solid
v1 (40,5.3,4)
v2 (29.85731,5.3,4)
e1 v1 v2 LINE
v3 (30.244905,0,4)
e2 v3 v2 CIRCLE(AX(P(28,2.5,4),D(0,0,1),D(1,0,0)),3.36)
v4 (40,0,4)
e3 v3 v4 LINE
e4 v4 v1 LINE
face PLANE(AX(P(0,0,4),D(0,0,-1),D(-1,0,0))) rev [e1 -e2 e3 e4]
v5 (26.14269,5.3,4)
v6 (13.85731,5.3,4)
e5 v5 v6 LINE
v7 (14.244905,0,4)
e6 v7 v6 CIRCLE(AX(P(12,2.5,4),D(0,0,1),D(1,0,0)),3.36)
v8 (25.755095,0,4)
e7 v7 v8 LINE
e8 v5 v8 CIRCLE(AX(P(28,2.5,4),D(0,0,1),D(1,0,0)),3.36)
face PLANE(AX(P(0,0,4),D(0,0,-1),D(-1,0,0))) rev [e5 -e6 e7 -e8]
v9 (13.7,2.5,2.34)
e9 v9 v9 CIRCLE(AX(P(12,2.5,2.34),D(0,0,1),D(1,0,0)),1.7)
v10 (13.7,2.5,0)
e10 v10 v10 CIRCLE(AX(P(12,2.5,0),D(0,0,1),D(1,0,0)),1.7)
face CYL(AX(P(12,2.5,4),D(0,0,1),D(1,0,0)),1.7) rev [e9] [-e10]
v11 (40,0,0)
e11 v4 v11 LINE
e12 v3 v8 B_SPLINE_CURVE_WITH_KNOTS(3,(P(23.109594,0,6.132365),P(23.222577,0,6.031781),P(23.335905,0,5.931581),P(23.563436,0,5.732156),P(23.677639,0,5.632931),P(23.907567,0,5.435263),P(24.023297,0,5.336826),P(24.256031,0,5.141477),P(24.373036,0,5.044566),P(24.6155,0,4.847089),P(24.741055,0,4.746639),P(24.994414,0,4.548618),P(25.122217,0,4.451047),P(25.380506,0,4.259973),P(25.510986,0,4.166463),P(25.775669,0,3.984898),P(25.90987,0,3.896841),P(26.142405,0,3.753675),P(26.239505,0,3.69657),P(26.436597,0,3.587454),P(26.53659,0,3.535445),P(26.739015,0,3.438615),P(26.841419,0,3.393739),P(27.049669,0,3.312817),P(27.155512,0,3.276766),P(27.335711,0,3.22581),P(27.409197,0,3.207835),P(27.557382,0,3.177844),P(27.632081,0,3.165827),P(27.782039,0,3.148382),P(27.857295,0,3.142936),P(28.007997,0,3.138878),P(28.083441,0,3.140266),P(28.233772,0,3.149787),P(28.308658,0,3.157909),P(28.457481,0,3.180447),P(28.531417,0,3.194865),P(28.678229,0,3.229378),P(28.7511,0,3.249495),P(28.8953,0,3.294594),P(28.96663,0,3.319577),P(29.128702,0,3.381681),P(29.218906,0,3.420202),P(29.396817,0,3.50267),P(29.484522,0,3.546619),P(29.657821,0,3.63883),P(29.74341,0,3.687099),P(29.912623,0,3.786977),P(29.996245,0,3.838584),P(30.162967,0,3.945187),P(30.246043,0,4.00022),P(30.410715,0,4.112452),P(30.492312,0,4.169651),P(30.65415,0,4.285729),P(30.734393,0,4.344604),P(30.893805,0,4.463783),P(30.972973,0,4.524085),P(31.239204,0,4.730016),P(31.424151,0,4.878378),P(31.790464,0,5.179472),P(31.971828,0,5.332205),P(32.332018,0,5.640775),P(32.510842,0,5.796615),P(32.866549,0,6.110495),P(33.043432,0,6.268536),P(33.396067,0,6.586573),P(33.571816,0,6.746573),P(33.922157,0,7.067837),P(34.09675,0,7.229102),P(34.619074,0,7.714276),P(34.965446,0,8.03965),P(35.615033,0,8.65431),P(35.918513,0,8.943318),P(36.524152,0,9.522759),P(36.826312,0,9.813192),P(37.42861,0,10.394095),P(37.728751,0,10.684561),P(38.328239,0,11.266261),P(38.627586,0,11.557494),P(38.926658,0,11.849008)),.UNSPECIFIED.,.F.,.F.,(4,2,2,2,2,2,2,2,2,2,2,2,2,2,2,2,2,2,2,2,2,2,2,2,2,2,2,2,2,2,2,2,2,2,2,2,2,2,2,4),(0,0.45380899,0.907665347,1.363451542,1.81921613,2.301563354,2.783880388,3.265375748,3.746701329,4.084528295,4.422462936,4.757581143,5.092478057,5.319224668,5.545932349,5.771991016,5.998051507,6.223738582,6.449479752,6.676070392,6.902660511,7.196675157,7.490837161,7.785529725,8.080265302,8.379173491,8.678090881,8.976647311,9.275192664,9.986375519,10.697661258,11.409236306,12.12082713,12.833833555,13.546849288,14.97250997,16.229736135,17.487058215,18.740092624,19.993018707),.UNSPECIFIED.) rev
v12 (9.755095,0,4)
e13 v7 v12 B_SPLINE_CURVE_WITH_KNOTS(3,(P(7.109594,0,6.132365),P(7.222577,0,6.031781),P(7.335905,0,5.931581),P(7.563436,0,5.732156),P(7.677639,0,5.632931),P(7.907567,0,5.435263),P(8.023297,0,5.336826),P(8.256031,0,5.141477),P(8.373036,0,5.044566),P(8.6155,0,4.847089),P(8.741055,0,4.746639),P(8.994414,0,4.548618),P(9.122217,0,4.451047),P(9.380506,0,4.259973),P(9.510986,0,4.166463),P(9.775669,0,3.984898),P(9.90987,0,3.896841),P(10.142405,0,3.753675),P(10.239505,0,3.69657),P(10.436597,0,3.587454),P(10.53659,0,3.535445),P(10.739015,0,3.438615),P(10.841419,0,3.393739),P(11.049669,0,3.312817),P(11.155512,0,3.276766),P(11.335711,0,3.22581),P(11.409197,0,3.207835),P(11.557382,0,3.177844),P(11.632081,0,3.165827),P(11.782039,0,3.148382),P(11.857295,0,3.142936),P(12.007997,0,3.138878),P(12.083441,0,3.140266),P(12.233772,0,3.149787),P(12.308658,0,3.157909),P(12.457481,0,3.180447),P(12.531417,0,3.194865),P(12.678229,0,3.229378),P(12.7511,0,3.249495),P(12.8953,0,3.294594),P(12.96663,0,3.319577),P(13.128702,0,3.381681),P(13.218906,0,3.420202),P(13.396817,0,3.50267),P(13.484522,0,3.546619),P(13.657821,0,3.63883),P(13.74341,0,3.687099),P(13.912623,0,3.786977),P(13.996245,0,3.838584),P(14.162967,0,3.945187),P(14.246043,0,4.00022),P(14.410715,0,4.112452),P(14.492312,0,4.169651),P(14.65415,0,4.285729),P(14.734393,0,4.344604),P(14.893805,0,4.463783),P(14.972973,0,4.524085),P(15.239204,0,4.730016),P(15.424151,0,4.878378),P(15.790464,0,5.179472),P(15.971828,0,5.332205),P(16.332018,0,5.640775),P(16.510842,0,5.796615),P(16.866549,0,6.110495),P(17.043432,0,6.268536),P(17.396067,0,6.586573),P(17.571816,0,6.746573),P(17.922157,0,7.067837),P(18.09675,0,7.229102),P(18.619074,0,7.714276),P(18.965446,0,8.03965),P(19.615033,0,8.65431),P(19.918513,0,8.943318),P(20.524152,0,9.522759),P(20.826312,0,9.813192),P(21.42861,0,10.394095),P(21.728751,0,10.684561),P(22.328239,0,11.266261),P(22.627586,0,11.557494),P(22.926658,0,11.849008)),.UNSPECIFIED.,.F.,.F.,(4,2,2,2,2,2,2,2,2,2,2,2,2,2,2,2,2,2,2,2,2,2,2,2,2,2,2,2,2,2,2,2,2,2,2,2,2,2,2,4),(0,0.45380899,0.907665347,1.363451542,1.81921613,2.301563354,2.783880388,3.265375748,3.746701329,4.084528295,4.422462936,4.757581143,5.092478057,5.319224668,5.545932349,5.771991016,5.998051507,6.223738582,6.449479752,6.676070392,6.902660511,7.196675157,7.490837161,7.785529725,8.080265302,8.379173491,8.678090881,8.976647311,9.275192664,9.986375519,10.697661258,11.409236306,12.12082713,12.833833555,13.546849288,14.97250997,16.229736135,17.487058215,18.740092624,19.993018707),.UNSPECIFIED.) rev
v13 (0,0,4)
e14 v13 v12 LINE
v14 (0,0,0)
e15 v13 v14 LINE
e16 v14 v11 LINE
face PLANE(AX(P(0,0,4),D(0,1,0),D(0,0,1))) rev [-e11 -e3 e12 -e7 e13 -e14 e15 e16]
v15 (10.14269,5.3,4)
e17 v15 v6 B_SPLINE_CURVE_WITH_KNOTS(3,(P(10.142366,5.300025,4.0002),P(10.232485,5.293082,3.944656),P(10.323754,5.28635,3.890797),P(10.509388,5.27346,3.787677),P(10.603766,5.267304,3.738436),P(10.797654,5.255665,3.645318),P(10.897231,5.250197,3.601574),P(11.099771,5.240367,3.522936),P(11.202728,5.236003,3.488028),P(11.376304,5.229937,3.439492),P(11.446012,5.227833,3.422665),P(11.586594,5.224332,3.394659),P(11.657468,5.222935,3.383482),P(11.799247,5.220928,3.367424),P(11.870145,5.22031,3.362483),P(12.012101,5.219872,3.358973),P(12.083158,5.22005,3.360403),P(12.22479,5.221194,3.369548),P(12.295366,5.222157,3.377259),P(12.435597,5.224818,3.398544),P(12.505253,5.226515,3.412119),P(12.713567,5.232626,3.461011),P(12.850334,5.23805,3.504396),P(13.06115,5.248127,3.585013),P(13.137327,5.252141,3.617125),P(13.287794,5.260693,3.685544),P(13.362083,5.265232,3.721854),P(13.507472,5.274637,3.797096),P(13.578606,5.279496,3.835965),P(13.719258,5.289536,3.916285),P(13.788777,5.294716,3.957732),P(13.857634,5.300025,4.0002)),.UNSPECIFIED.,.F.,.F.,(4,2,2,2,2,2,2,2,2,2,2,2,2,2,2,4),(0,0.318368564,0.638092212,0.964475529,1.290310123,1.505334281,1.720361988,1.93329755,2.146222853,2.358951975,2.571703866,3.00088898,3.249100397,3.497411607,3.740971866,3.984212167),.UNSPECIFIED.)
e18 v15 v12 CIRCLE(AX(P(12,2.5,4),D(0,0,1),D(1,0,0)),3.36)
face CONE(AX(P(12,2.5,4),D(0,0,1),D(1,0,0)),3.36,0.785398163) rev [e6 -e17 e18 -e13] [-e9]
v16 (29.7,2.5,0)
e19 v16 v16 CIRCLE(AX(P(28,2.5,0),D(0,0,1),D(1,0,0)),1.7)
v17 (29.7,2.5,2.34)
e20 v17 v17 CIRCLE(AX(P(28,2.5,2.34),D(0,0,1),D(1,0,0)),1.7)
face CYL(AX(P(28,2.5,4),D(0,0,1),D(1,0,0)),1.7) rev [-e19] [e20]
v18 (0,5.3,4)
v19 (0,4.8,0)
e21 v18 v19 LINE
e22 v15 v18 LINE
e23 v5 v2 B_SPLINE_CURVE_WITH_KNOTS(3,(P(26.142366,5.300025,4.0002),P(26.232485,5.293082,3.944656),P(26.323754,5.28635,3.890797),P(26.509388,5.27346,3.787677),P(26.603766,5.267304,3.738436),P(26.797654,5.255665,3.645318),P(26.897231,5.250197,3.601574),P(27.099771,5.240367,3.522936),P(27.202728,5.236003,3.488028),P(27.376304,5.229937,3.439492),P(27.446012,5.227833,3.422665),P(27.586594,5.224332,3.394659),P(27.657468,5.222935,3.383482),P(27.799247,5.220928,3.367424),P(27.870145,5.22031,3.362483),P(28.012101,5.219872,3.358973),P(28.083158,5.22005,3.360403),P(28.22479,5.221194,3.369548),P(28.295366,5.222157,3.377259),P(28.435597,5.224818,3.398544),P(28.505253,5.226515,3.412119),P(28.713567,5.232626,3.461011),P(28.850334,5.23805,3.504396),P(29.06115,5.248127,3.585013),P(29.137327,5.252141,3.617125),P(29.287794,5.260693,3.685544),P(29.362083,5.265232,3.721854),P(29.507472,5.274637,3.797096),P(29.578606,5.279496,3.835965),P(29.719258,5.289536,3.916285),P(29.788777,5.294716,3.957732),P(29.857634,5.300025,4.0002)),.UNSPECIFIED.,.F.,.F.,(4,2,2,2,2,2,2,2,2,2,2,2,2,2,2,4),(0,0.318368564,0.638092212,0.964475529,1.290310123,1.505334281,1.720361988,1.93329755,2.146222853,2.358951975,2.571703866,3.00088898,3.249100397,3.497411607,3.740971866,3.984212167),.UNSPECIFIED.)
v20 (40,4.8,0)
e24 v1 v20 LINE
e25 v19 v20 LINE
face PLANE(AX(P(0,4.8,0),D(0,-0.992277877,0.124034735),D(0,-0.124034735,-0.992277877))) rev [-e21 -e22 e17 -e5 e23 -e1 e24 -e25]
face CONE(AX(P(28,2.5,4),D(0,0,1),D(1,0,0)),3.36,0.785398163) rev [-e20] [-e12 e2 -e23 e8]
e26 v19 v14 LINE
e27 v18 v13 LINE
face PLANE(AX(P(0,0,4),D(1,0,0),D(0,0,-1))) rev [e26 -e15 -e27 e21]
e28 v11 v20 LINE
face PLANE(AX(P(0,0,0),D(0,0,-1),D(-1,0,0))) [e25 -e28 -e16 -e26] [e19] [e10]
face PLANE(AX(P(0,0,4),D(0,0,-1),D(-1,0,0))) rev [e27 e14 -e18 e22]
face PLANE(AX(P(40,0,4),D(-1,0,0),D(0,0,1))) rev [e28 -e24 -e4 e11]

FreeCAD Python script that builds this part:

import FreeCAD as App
import Part
import Sketcher
from FreeCAD import Vector


def add_polygon(sketch, points):
    """Adds a closed chain of lines whose ends are joined by coincident constraints."""
    first, n = sketch.GeometryCount, len(points)
    for a, b in zip(points, points[1:] + points[:1]):
        sketch.addGeometry(Part.LineSegment(App.Vector(*a, 0), App.Vector(*b, 0)), False)
    for i in range(n):
        sketch.addConstraint(Sketcher.Constraint("Coincident", first + i, 2, first + (i + 1) % n, 1))

doc = App.newDocument("Part")
body = doc.addObject("PartDesign::Body", "Body")

# Sketch on XY plane
sketch1 = doc.addObject("Sketcher::SketchObject", "Sketch")
body.addObject(sketch1)
sketch1.AttachmentSupport = (doc.XY_Plane, [""])
sketch1.MapMode = "FlatFace"
add_polygon(sketch1, [(0, 5), (0, 0), (40, 0), (40, 5)])  # lines 0-3
sketch1.addConstraint([
    Sketcher.Constraint("Vertical", 0),
    Sketcher.Constraint("Horizontal", 1),
    Sketcher.Constraint("Vertical", 2),
    Sketcher.Constraint("Horizontal", 3),
    Sketcher.Constraint("Coincident", 0, 2, -1, 1),
    Sketcher.Constraint("DistanceX", 1, 1, 1, 2, 40.0),
    Sketcher.Constraint("DistanceY", 0, 2, 0, 1, 5.3),
])
pad1 = doc.addObject("PartDesign::Pad", "Pad")
body.addObject(pad1)
pad1.Profile = sketch1
pad1.Length = 4

# Sketch on YZ plane
sketch2 = doc.addObject("Sketcher::SketchObject", "Sketch001")
body.addObject(sketch2)
sketch2.AttachmentSupport = (doc.YZ_Plane, [""])
sketch2.MapMode = "FlatFace"
sketch2.AttachmentOffset = App.Placement(Vector(0, 0, 40), App.Rotation())
add_polygon(sketch2, [(5.3, 0), (5.3, 4), (4.8, 0)])  # lines 0-2
sketch2.addConstraint([
    Sketcher.Constraint("Vertical", 0),
    Sketcher.Constraint("Horizontal", 2),
    Sketcher.Constraint("PointOnObject", 1, 2, -1),
    Sketcher.Constraint("DistanceY", 0, 1, 0, 2, 4.0),
    Sketcher.Constraint("DistanceX", 2, 1, 2, 2, 0.5),
    Sketcher.Constraint("DistanceX", -1, 1, 0, 2, 5.3),
])
pocket1 = doc.addObject("PartDesign::Pocket", "Pocket")
body.addObject(pocket1)
pocket1.Profile = sketch2
pocket1.Type = "ThroughAll"

# Sketch on XY plane
sketch3 = doc.addObject("Sketcher::SketchObject", "Sketch002")
body.addObject(sketch3)
sketch3.AttachmentSupport = (doc.XY_Plane, [""])
sketch3.MapMode = "FlatFace"
sketch3.AttachmentOffset = App.Placement(Vector(0, 0, 4), App.Rotation())
sketch3.addGeometry([
    Part.Circle(Vector(12, 2.5, 0), Vector(0, 0, 1), 1.5),
    Part.Circle(Vector(28, 2.5, 0), Vector(0, 0, 1), 1.5),
], False)
sketch3.addConstraint([
    Sketcher.Constraint("Equal", 0, 1),
    Sketcher.Constraint("Horizontal", 0, 3, 1, 3),
    Sketcher.Constraint("Diameter", 0, 3.0),
    Sketcher.Constraint("DistanceX", -1, 1, 0, 3, 12.0),
    Sketcher.Constraint("DistanceX", -1, 1, 1, 3, 28.0),
    Sketcher.Constraint("DistanceY", -1, 1, 0, 3, 2.5),
])
pocket2 = doc.addObject("PartDesign::Pocket", "Pocket001")
body.addObject(pocket2)
pocket2.Profile = sketch3
pocket2.Type = "ThroughAll"

# Sketch on XY plane
sketch4 = doc.addObject("Sketcher::SketchObject", "Sketch003")
body.addObject(sketch4)
sketch4.AttachmentSupport = (doc.XY_Plane, [""])
sketch4.MapMode = "FlatFace"
sketch4.AttachmentOffset = App.Placement(Vector(0, 0, 4), App.Rotation())
sketch4.addGeometry([
    Part.Circle(Vector(12, 2.5, 0), Vector(0, 0, 1), 1.7),
    Part.Circle(Vector(28, 2.5, 0), Vector(0, 0, 1), 1.7),
], False)
sketch4.addConstraint([
    Sketcher.Constraint("Equal", 0, 1),
    Sketcher.Constraint("Horizontal", 0, 3, 1, 3),
    Sketcher.Constraint("Diameter", 0, 3.4),
    Sketcher.Constraint("DistanceX", -1, 1, 0, 3, 12.0),
    Sketcher.Constraint("DistanceX", -1, 1, 1, 3, 28.0),
    Sketcher.Constraint("DistanceY", -1, 1, 0, 3, 2.5),
])
doc.recompute()
hole = doc.addObject("PartDesign::Hole", "Hole")
body.addObject(hole)
hole.Profile = sketch4
hole.ThreadType = "None"
hole.Diameter = 3.4
hole.DepthType = "ThroughAll"
hole.HoleCutType = "Countersink"
hole.HoleCutDiameter = 6.72
hole.HoleCutCountersinkAngle = 90

doc.recompute()
